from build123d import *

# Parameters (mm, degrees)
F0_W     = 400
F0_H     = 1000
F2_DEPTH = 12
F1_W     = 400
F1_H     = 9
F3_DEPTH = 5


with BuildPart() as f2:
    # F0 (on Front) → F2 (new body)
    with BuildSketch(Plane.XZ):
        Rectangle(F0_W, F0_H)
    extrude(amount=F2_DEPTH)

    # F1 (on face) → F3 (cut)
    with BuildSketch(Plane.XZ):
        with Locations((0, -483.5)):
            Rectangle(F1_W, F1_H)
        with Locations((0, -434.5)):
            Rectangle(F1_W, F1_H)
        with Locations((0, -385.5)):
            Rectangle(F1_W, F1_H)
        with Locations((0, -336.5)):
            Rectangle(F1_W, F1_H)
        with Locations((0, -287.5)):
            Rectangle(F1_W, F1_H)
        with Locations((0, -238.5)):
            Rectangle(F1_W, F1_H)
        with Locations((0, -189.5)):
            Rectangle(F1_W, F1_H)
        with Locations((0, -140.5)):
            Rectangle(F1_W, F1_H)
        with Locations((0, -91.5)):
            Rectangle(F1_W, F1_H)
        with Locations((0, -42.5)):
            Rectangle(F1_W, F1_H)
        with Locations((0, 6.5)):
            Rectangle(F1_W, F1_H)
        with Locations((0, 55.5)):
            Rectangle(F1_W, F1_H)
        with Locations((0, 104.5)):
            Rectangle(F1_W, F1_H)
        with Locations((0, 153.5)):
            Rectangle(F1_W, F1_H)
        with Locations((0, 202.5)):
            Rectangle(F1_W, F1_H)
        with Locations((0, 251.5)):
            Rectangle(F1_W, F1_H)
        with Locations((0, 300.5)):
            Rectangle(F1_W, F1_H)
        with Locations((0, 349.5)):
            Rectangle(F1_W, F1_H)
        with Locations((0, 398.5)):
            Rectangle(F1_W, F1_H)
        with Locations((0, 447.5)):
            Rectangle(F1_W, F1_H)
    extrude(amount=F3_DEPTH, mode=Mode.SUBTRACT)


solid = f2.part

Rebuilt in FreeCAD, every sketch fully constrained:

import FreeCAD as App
import Part
import Sketcher
from FreeCAD import Vector

doc = App.newDocument("Part")
body = doc.addObject("PartDesign::Body", "Body")

# Sketch on XZ plane
sketch1 = body.newObject("Sketcher::SketchObject", "Sketch")
sketch1.AttachmentSupport = (doc.getObject("XZ_Plane"), [""])
sketch1.MapMode = "FlatFace"
sketch1.addGeometry(Part.LineSegment(Vector(-200, 500, 0), Vector(-200, -500, 0)), False)
sketch1.addGeometry(Part.LineSegment(Vector(-200, -500, 0), Vector(200, -500, 0)), False)
sketch1.addGeometry(Part.LineSegment(Vector(200, -500, 0), Vector(200, 500, 0)), False)
sketch1.addGeometry(Part.LineSegment(Vector(200, 500, 0), Vector(-200, 500, 0)), False)
sketch1.addConstraint(Sketcher.Constraint("Coincident", 0, 2, 1, 1))
sketch1.addConstraint(Sketcher.Constraint("Coincident", 1, 2, 2, 1))
sketch1.addConstraint(Sketcher.Constraint("Coincident", 2, 2, 3, 1))
sketch1.addConstraint(Sketcher.Constraint("Coincident", 3, 2, 0, 1))
sketch1.addConstraint(Sketcher.Constraint("Vertical", 0))
sketch1.addConstraint(Sketcher.Constraint("Horizontal", 1))
sketch1.addConstraint(Sketcher.Constraint("Vertical", 2))
sketch1.addConstraint(Sketcher.Constraint("Horizontal", 3))
sketch1.addConstraint(Sketcher.Constraint("Symmetric", 0, 2, 2, 2, -1, 1))
sketch1.addConstraint(Sketcher.Constraint("DistanceX", 1, 1, 1, 2, 400.0))
sketch1.addConstraint(Sketcher.Constraint("DistanceY", 0, 2, 0, 1, 1000.0))
pad1 = body.newObject("PartDesign::Pad", "Pad")
pad1.Profile = sketch1
pad1.Length = 12

# Sketch on XZ plane
sketch2 = body.newObject("Sketcher::SketchObject", "Sketch001")
sketch2.AttachmentSupport = (doc.getObject("XZ_Plane"), [""])
sketch2.MapMode = "FlatFace"
sketch2.addGeometry(Part.LineSegment(Vector(-200, -479, 0), Vector(-200, -488, 0)), False)
sketch2.addGeometry(Part.LineSegment(Vector(-200, -488, 0), Vector(200, -488, 0)), False)
sketch2.addGeometry(Part.LineSegment(Vector(200, -488, 0), Vector(200, -479, 0)), False)
sketch2.addGeometry(Part.LineSegment(Vector(200, -479, 0), Vector(-200, -479, 0)), False)
sketch2.addGeometry(Part.LineSegment(Vector(-200, -430, 0), Vector(-200, -439, 0)), False)
sketch2.addGeometry(Part.LineSegment(Vector(-200, -439, 0), Vector(200, -439, 0)), False)
sketch2.addGeometry(Part.LineSegment(Vector(200, -439, 0), Vector(200, -430, 0)), False)
sketch2.addGeometry(Part.LineSegment(Vector(200, -430, 0), Vector(-200, -430, 0)), False)
sketch2.addGeometry(Part.LineSegment(Vector(-200, -381, 0), Vector(-200, -390, 0)), False)
sketch2.addGeometry(Part.LineSegment(Vector(-200, -390, 0), Vector(200, -390, 0)), False)
sketch2.addGeometry(Part.LineSegment(Vector(200, -390, 0), Vector(200, -381, 0)), False)
sketch2.addGeometry(Part.LineSegment(Vector(200, -381, 0), Vector(-200, -381, 0)), False)
sketch2.addGeometry(Part.LineSegment(Vector(-200, -332, 0), Vector(-200, -341, 0)), False)
sketch2.addGeometry(Part.LineSegment(Vector(-200, -341, 0), Vector(200, -341, 0)), False)
sketch2.addGeometry(Part.LineSegment(Vector(200, -341, 0), Vector(200, -332, 0)), False)
sketch2.addGeometry(Part.LineSegment(Vector(200, -332, 0), Vector(-200, -332, 0)), False)
sketch2.addGeometry(Part.LineSegment(Vector(-200, -283, 0), Vector(-200, -292, 0)), False)
sketch2.addGeometry(Part.LineSegment(Vector(-200, -292, 0), Vector(200, -292, 0)), False)
sketch2.addGeometry(Part.LineSegment(Vector(200, -292, 0), Vector(200, -283, 0)), False)
sketch2.addGeometry(Part.LineSegment(Vector(200, -283, 0), Vector(-200, -283, 0)), False)
sketch2.addGeometry(Part.LineSegment(Vector(-200, -234, 0), Vector(-200, -243, 0)), False)
sketch2.addGeometry(Part.LineSegment(Vector(-200, -243, 0), Vector(200, -243, 0)), False)
sketch2.addGeometry(Part.LineSegment(Vector(200, -243, 0), Vector(200, -234, 0)), False)
sketch2.addGeometry(Part.LineSegment(Vector(200, -234, 0), Vector(-200, -234, 0)), False)
sketch2.addGeometry(Part.LineSegment(Vector(-200, -185, 0), Vector(-200, -194, 0)), False)
sketch2.addGeometry(Part.LineSegment(Vector(-200, -194, 0), Vector(200, -194, 0)), False)
sketch2.addGeometry(Part.LineSegment(Vector(200, -194, 0), Vector(200, -185, 0)), False)
sketch2.addGeometry(Part.LineSegment(Vector(200, -185, 0), Vector(-200, -185, 0)), False)
sketch2.addGeometry(Part.LineSegment(Vector(-200, -136, 0), Vector(-200, -145, 0)), False)
sketch2.addGeometry(Part.LineSegment(Vector(-200, -145, 0), Vector(200, -145, 0)), False)
sketch2.addGeometry(Part.LineSegment(Vector(200, -145, 0), Vector(200, -136, 0)), False)
sketch2.addGeometry(Part.LineSegment(Vector(200, -136, 0), Vector(-200, -136, 0)), False)
sketch2.addGeometry(Part.LineSegment(Vector(-200, -87, 0), Vector(-200, -96, 0)), False)
sketch2.addGeometry(Part.LineSegment(Vector(-200, -96, 0), Vector(200, -96, 0)), False)
sketch2.addGeometry(Part.LineSegment(Vector(200, -96, 0), Vector(200, -87, 0)), False)
sketch2.addGeometry(Part.LineSegment(Vector(200, -87, 0), Vector(-200, -87, 0)), False)
sketch2.addGeometry(Part.LineSegment(Vector(-200, -38, 0), Vector(-200, -47, 0)), False)
sketch2.addGeometry(Part.LineSegment(Vector(-200, -47, 0), Vector(200, -47, 0)), False)
sketch2.addGeometry(Part.LineSegment(Vector(200, -47, 0), Vector(200, -38, 0)), False)
sketch2.addGeometry(Part.LineSegment(Vector(200, -38, 0), Vector(-200, -38, 0)), False)
sketch2.addGeometry(Part.LineSegment(Vector(-200, 11, 0), Vector(-200, 2, 0)), False)
sketch2.addGeometry(Part.LineSegment(Vector(-200, 2, 0), Vector(200, 2, 0)), False)
sketch2.addGeometry(Part.LineSegment(Vector(200, 2, 0), Vector(200, 11, 0)), False)
sketch2.addGeometry(Part.LineSegment(Vector(200, 11, 0), Vector(-200, 11, 0)), False)
sketch2.addGeometry(Part.LineSegment(Vector(-200, 60, 0), Vector(-200, 51, 0)), False)
sketch2.addGeometry(Part.LineSegment(Vector(-200, 51, 0), Vector(200, 51, 0)), False)
sketch2.addGeometry(Part.LineSegment(Vector(200, 51, 0), Vector(200, 60, 0)), False)
sketch2.addGeometry(Part.LineSegment(Vector(200, 60, 0), Vector(-200, 60, 0)), False)
sketch2.addGeometry(Part.LineSegment(Vector(-200, 109, 0), Vector(-200, 100, 0)), False)
sketch2.addGeometry(Part.LineSegment(Vector(-200, 100, 0), Vector(200, 100, 0)), False)
sketch2.addGeometry(Part.LineSegment(Vector(200, 100, 0), Vector(200, 109, 0)), False)
sketch2.addGeometry(Part.LineSegment(Vector(200, 109, 0), Vector(-200, 109, 0)), False)
sketch2.addGeometry(Part.LineSegment(Vector(-200, 158, 0), Vector(-200, 149, 0)), False)
sketch2.addGeometry(Part.LineSegment(Vector(-200, 149, 0), Vector(200, 149, 0)), False)
sketch2.addGeometry(Part.LineSegment(Vector(200, 149, 0), Vector(200, 158, 0)), False)
sketch2.addGeometry(Part.LineSegment(Vector(200, 158, 0), Vector(-200, 158, 0)), False)
sketch2.addGeometry(Part.LineSegment(Vector(-200, 207, 0), Vector(-200, 198, 0)), False)
sketch2.addGeometry(Part.LineSegment(Vector(-200, 198, 0), Vector(200, 198, 0)), False)
sketch2.addGeometry(Part.LineSegment(Vector(200, 198, 0), Vector(200, 207, 0)), False)
sketch2.addGeometry(Part.LineSegment(Vector(200, 207, 0), Vector(-200, 207, 0)), False)
sketch2.addGeometry(Part.LineSegment(Vector(-200, 256, 0), Vector(-200, 247, 0)), False)
sketch2.addGeometry(Part.LineSegment(Vector(-200, 247, 0), Vector(200, 247, 0)), False)
sketch2.addGeometry(Part.LineSegment(Vector(200, 247, 0), Vector(200, 256, 0)), False)
sketch2.addGeometry(Part.LineSegment(Vector(200, 256, 0), Vector(-200, 256, 0)), False)
sketch2.addGeometry(Part.LineSegment(Vector(-200, 305, 0), Vector(-200, 296, 0)), False)
sketch2.addGeometry(Part.LineSegment(Vector(-200, 296, 0), Vector(200, 296, 0)), False)
sketch2.addGeometry(Part.LineSegment(Vector(200, 296, 0), Vector(200, 305, 0)), False)
sketch2.addGeometry(Part.LineSegment(Vector(200, 305, 0), Vector(-200, 305, 0)), False)
sketch2.addGeometry(Part.LineSegment(Vector(-200, 354, 0), Vector(-200, 345, 0)), False)
sketch2.addGeometry(Part.LineSegment(Vector(-200, 345, 0), Vector(200, 345, 0)), False)
sketch2.addGeometry(Part.LineSegment(Vector(200, 345, 0), Vector(200, 354, 0)), False)
sketch2.addGeometry(Part.LineSegment(Vector(200, 354, 0), Vector(-200, 354, 0)), False)
sketch2.addGeometry(Part.LineSegment(Vector(-200, 403, 0), Vector(-200, 394, 0)), False)
sketch2.addGeometry(Part.LineSegment(Vector(-200, 394, 0), Vector(200, 394, 0)), False)
sketch2.addGeometry(Part.LineSegment(Vector(200, 394, 0), Vector(200, 403, 0)), False)
sketch2.addGeometry(Part.LineSegment(Vector(200, 403, 0), Vector(-200, 403, 0)), False)
sketch2.addGeometry(Part.LineSegment(Vector(-200, 452, 0), Vector(-200, 443, 0)), False)
sketch2.addGeometry(Part.LineSegment(Vector(-200, 443, 0), Vector(200, 443, 0)), False)
sketch2.addGeometry(Part.LineSegment(Vector(200, 443, 0), Vector(200, 452, 0)), False)
sketch2.addGeometry(Part.LineSegment(Vector(200, 452, 0), Vector(-200, 452, 0)), False)
sketch2.addConstraint(Sketcher.Constraint("Coincident", 0, 2, 1, 1))
sketch2.addConstraint(Sketcher.Constraint("Coincident", 1, 2, 2, 1))
sketch2.addConstraint(Sketcher.Constraint("Coincident", 2, 2, 3, 1))
sketch2.addConstraint(Sketcher.Constraint("Coincident", 3, 2, 0, 1))
sketch2.addConstraint(Sketcher.Constraint("Coincident", 4, 2, 5, 1))
sketch2.addConstraint(Sketcher.Constraint("Coincident", 5, 2, 6, 1))
sketch2.addConstraint(Sketcher.Constraint("Coincident", 6, 2, 7, 1))
sketch2.addConstraint(Sketcher.Constraint("Coincident", 7, 2, 4, 1))
sketch2.addConstraint(Sketcher.Constraint("Coincident", 8, 2, 9, 1))
sketch2.addConstraint(Sketcher.Constraint("Coincident", 9, 2, 10, 1))
sketch2.addConstraint(Sketcher.Constraint("Coincident", 10, 2, 11, 1))
sketch2.addConstraint(Sketcher.Constraint("Coincident", 11, 2, 8, 1))
sketch2.addConstraint(Sketcher.Constraint("Coincident", 12, 2, 13, 1))
sketch2.addConstraint(Sketcher.Constraint("Coincident", 13, 2, 14, 1))
sketch2.addConstraint(Sketcher.Constraint("Coincident", 14, 2, 15, 1))
sketch2.addConstraint(Sketcher.Constraint("Coincident", 15, 2, 12, 1))
sketch2.addConstraint(Sketcher.Constraint("Coincident", 16, 2, 17, 1))
sketch2.addConstraint(Sketcher.Constraint("Coincident", 17, 2, 18, 1))
sketch2.addConstraint(Sketcher.Constraint("Coincident", 18, 2, 19, 1))
sketch2.addConstraint(Sketcher.Constraint("Coincident", 19, 2, 16, 1))
sketch2.addConstraint(Sketcher.Constraint("Coincident", 20, 2, 21, 1))
sketch2.addConstraint(Sketcher.Constraint("Coincident", 21, 2, 22, 1))
sketch2.addConstraint(Sketcher.Constraint("Coincident", 22, 2, 23, 1))
sketch2.addConstraint(Sketcher.Constraint("Coincident", 23, 2, 20, 1))
sketch2.addConstraint(Sketcher.Constraint("Coincident", 24, 2, 25, 1))
sketch2.addConstraint(Sketcher.Constraint("Coincident", 25, 2, 26, 1))
sketch2.addConstraint(Sketcher.Constraint("Coincident", 26, 2, 27, 1))
sketch2.addConstraint(Sketcher.Constraint("Coincident", 27, 2, 24, 1))
sketch2.addConstraint(Sketcher.Constraint("Coincident", 28, 2, 29, 1))
sketch2.addConstraint(Sketcher.Constraint("Coincident", 29, 2, 30, 1))
sketch2.addConstraint(Sketcher.Constraint("Coincident", 30, 2, 31, 1))
sketch2.addConstraint(Sketcher.Constraint("Coincident", 31, 2, 28, 1))
sketch2.addConstraint(Sketcher.Constraint("Coincident", 32, 2, 33, 1))
sketch2.addConstraint(Sketcher.Constraint("Coincident", 33, 2, 34, 1))
sketch2.addConstraint(Sketcher.Constraint("Coincident", 34, 2, 35, 1))
sketch2.addConstraint(Sketcher.Constraint("Coincident", 35, 2, 32, 1))
sketch2.addConstraint(Sketcher.Constraint("Coincident", 36, 2, 37, 1))
sketch2.addConstraint(Sketcher.Constraint("Coincident", 37, 2, 38, 1))
sketch2.addConstraint(Sketcher.Constraint("Coincident", 38, 2, 39, 1))
sketch2.addConstraint(Sketcher.Constraint("Coincident", 39, 2, 36, 1))
sketch2.addConstraint(Sketcher.Constraint("Coincident", 40, 2, 41, 1))
sketch2.addConstraint(Sketcher.Constraint("Coincident", 41, 2, 42, 1))
sketch2.addConstraint(Sketcher.Constraint("Coincident", 42, 2, 43, 1))
sketch2.addConstraint(Sketcher.Constraint("Coincident", 43, 2, 40, 1))
sketch2.addConstraint(Sketcher.Constraint("Coincident", 44, 2, 45, 1))
sketch2.addConstraint(Sketcher.Constraint("Coincident", 45, 2, 46, 1))
sketch2.addConstraint(Sketcher.Constraint("Coincident", 46, 2, 47, 1))
sketch2.addConstraint(Sketcher.Constraint("Coincident", 47, 2, 44, 1))
sketch2.addConstraint(Sketcher.Constraint("Coincident", 48, 2, 49, 1))
sketch2.addConstraint(Sketcher.Constraint("Coincident", 49, 2, 50, 1))
sketch2.addConstraint(Sketcher.Constraint("Coincident", 50, 2, 51, 1))
sketch2.addConstraint(Sketcher.Constraint("Coincident", 51, 2, 48, 1))
sketch2.addConstraint(Sketcher.Constraint("Coincident", 52, 2, 53, 1))
sketch2.addConstraint(Sketcher.Constraint("Coincident", 53, 2, 54, 1))
sketch2.addConstraint(Sketcher.Constraint("Coincident", 54, 2, 55, 1))
sketch2.addConstraint(Sketcher.Constraint("Coincident", 55, 2, 52, 1))
sketch2.addConstraint(Sketcher.Constraint("Coincident", 56, 2, 57, 1))
sketch2.addConstraint(Sketcher.Constraint("Coincident", 57, 2, 58, 1))
sketch2.addConstraint(Sketcher.Constraint("Coincident", 58, 2, 59, 1))
sketch2.addConstraint(Sketcher.Constraint("Coincident", 59, 2, 56, 1))
sketch2.addConstraint(Sketcher.Constraint("Coincident", 60, 2, 61, 1))
sketch2.addConstraint(Sketcher.Constraint("Coincident", 61, 2, 62, 1))
sketch2.addConstraint(Sketcher.Constraint("Coincident", 62, 2, 63, 1))
sketch2.addConstraint(Sketcher.Constraint("Coincident", 63, 2, 60, 1))
sketch2.addConstraint(Sketcher.Constraint("Coincident", 64, 2, 65, 1))
sketch2.addConstraint(Sketcher.Constraint("Coincident", 65, 2, 66, 1))
sketch2.addConstraint(Sketcher.Constraint("Coincident", 66, 2, 67, 1))
sketch2.addConstraint(Sketcher.Constraint("Coincident", 67, 2, 64, 1))
sketch2.addConstraint(Sketcher.Constraint("Coincident", 68, 2, 69, 1))
sketch2.addConstraint(Sketcher.Constraint("Coincident", 69, 2, 70, 1))
sketch2.addConstraint(Sketcher.Constraint("Coincident", 70, 2, 71, 1))
sketch2.addConstraint(Sketcher.Constraint("Coincident", 71, 2, 68, 1))
sketch2.addConstraint(Sketcher.Constraint("Coincident", 72, 2, 73, 1))
sketch2.addConstraint(Sketcher.Constraint("Coincident", 73, 2, 74, 1))
sketch2.addConstraint(Sketcher.Constraint("Coincident", 74, 2, 75, 1))
sketch2.addConstraint(Sketcher.Constraint("Coincident", 75, 2, 72, 1))
sketch2.addConstraint(Sketcher.Constraint("Coincident", 76, 2, 77, 1))
sketch2.addConstraint(Sketcher.Constraint("Coincident", 77, 2, 78, 1))
sketch2.addConstraint(Sketcher.Constraint("Coincident", 78, 2, 79, 1))
sketch2.addConstraint(Sketcher.Constraint("Coincident", 79, 2, 76, 1))
sketch2.addConstraint(Sketcher.Constraint("Vertical", 0))
sketch2.addConstraint(Sketcher.Constraint("Horizontal", 1))
sketch2.addConstraint(Sketcher.Constraint("Vertical", 2))
sketch2.addConstraint(Sketcher.Constraint("Horizontal", 3))
sketch2.addConstraint(Sketcher.Constraint("Vertical", 4))
sketch2.addConstraint(Sketcher.Constraint("Horizontal", 5))
sketch2.addConstraint(Sketcher.Constraint("Vertical", 6))
sketch2.addConstraint(Sketcher.Constraint("Horizontal", 7))
sketch2.addConstraint(Sketcher.Constraint("Vertical", 8))
sketch2.addConstraint(Sketcher.Constraint("Horizontal", 9))
sketch2.addConstraint(Sketcher.Constraint("Vertical", 10))
sketch2.addConstraint(Sketcher.Constraint("Horizontal", 11))
sketch2.addConstraint(Sketcher.Constraint("Vertical", 12))
sketch2.addConstraint(Sketcher.Constraint("Horizontal", 13))
sketch2.addConstraint(Sketcher.Constraint("Vertical", 14))
sketch2.addConstraint(Sketcher.Constraint("Horizontal", 15))
sketch2.addConstraint(Sketcher.Constraint("Vertical", 16))
sketch2.addConstraint(Sketcher.Constraint("Horizontal", 17))
sketch2.addConstraint(Sketcher.Constraint("Vertical", 18))
sketch2.addConstraint(Sketcher.Constraint("Horizontal", 19))
sketch2.addConstraint(Sketcher.Constraint("Vertical", 20))
sketch2.addConstraint(Sketcher.Constraint("Horizontal", 21))
sketch2.addConstraint(Sketcher.Constraint("Vertical", 22))
sketch2.addConstraint(Sketcher.Constraint("Horizontal", 23))
sketch2.addConstraint(Sketcher.Constraint("Vertical", 24))
sketch2.addConstraint(Sketcher.Constraint("Horizontal", 25))
sketch2.addConstraint(Sketcher.Constraint("Vertical", 26))
sketch2.addConstraint(Sketcher.Constraint("Horizontal", 27))
sketch2.addConstraint(Sketcher.Constraint("Vertical", 28))
sketch2.addConstraint(Sketcher.Constraint("Horizontal", 29))
sketch2.addConstraint(Sketcher.Constraint("Vertical", 30))
sketch2.addConstraint(Sketcher.Constraint("Horizontal", 31))
sketch2.addConstraint(Sketcher.Constraint("Vertical", 32))
sketch2.addConstraint(Sketcher.Constraint("Horizontal", 33))
sketch2.addConstraint(Sketcher.Constraint("Vertical", 34))
sketch2.addConstraint(Sketcher.Constraint("Horizontal", 35))
sketch2.addConstraint(Sketcher.Constraint("Vertical", 36))
sketch2.addConstraint(Sketcher.Constraint("Horizontal", 37))
sketch2.addConstraint(Sketcher.Constraint("Vertical", 38))
sketch2.addConstraint(Sketcher.Constraint("Horizontal", 39))
sketch2.addConstraint(Sketcher.Constraint("Vertical", 40))
sketch2.addConstraint(Sketcher.Constraint("Horizontal", 41))
sketch2.addConstraint(Sketcher.Constraint("Vertical", 42))
sketch2.addConstraint(Sketcher.Constraint("Horizontal", 43))
sketch2.addConstraint(Sketcher.Constraint("Vertical", 44))
sketch2.addConstraint(Sketcher.Constraint("Horizontal", 45))
sketch2.addConstraint(Sketcher.Constraint("Vertical", 46))
sketch2.addConstraint(Sketcher.Constraint("Horizontal", 47))
sketch2.addConstraint(Sketcher.Constraint("Vertical", 48))
sketch2.addConstraint(Sketcher.Constraint("Horizontal", 49))
sketch2.addConstraint(Sketcher.Constraint("Vertical", 50))
sketch2.addConstraint(Sketcher.Constraint("Horizontal", 51))
sketch2.addConstraint(Sketcher.Constraint("Vertical", 52))
sketch2.addConstraint(Sketcher.Constraint("Horizontal", 53))
sketch2.addConstraint(Sketcher.Constraint("Vertical", 54))
sketch2.addConstraint(Sketcher.Constraint("Horizontal", 55))
sketch2.addConstraint(Sketcher.Constraint("Vertical", 56))
sketch2.addConstraint(Sketcher.Constraint("Horizontal", 57))
sketch2.addConstraint(Sketcher.Constraint("Vertical", 58))
sketch2.addConstraint(Sketcher.Constraint("Horizontal", 59))
sketch2.addConstraint(Sketcher.Constraint("Vertical", 60))
sketch2.addConstraint(Sketcher.Constraint("Horizontal", 61))
sketch2.addConstraint(Sketcher.Constraint("Vertical", 62))
sketch2.addConstraint(Sketcher.Constraint("Horizontal", 63))
sketch2.addConstraint(Sketcher.Constraint("Vertical", 64))
sketch2.addConstraint(Sketcher.Constraint("Horizontal", 65))
sketch2.addConstraint(Sketcher.Constraint("Vertical", 66))
sketch2.addConstraint(Sketcher.Constraint("Horizontal", 67))
sketch2.addConstraint(Sketcher.Constraint("Vertical", 68))
sketch2.addConstraint(Sketcher.Constraint("Horizontal", 69))
sketch2.addConstraint(Sketcher.Constraint("Vertical", 70))
sketch2.addConstraint(Sketcher.Constraint("Horizontal", 71))
sketch2.addConstraint(Sketcher.Constraint("Vertical", 72))
sketch2.addConstraint(Sketcher.Constraint("Horizontal", 73))
sketch2.addConstraint(Sketcher.Constraint("Vertical", 74))
sketch2.addConstraint(Sketcher.Constraint("Horizontal", 75))
sketch2.addConstraint(Sketcher.Constraint("Vertical", 76))
sketch2.addConstraint(Sketcher.Constraint("Horizontal", 77))
sketch2.addConstraint(Sketcher.Constraint("Vertical", 78))
sketch2.addConstraint(Sketcher.Constraint("Horizontal", 79))
sketch2.addConstraint(Sketcher.Constraint("Vertical", 3, 2, 4, 2))
sketch2.addConstraint(Sketcher.Constraint("Vertical", 2, 2, 5, 2))
sketch2.addConstraint(Sketcher.Constraint("Vertical", 7, 2, 8, 2))
sketch2.addConstraint(Sketcher.Constraint("Vertical", 6, 2, 9, 2))
sketch2.addConstraint(Sketcher.Constraint("Vertical", 11, 2, 12, 2))
sketch2.addConstraint(Sketcher.Constraint("Vertical", 10, 2, 13, 2))
sketch2.addConstraint(Sketcher.Constraint("Vertical", 15, 2, 16, 2))
sketch2.addConstraint(Sketcher.Constraint("Vertical", 14, 2, 17, 2))
sketch2.addConstraint(Sketcher.Constraint("Vertical", 19, 2, 20, 2))
sketch2.addConstraint(Sketcher.Constraint("Vertical", 18, 2, 21, 2))
sketch2.addConstraint(Sketcher.Constraint("Vertical", 23, 2, 24, 2))
sketch2.addConstraint(Sketcher.Constraint("Vertical", 22, 2, 25, 2))
sketch2.addConstraint(Sketcher.Constraint("Vertical", 27, 2, 28, 2))
sketch2.addConstraint(Sketcher.Constraint("Vertical", 26, 2, 29, 2))
sketch2.addConstraint(Sketcher.Constraint("Vertical", 31, 2, 32, 2))
sketch2.addConstraint(Sketcher.Constraint("Vertical", 30, 2, 33, 2))
sketch2.addConstraint(Sketcher.Constraint("Vertical", 35, 2, 36, 2))
sketch2.addConstraint(Sketcher.Constraint("Vertical", 34, 2, 37, 2))
sketch2.addConstraint(Sketcher.Constraint("Vertical", 39, 2, 40, 2))
sketch2.addConstraint(Sketcher.Constraint("Vertical", 38, 2, 41, 2))
sketch2.addConstraint(Sketcher.Constraint("Vertical", 43, 2, 44, 2))
sketch2.addConstraint(Sketcher.Constraint("Vertical", 42, 2, 45, 2))
sketch2.addConstraint(Sketcher.Constraint("Vertical", 47, 2, 48, 2))
sketch2.addConstraint(Sketcher.Constraint("Vertical", 46, 2, 49, 2))
sketch2.addConstraint(Sketcher.Constraint("Vertical", 51, 2, 52, 2))
sketch2.addConstraint(Sketcher.Constraint("Vertical", 50, 2, 53, 2))
sketch2.addConstraint(Sketcher.Constraint("Vertical", 55, 2, 56, 2))
sketch2.addConstraint(Sketcher.Constraint("Vertical", 54, 2, 57, 2))
sketch2.addConstraint(Sketcher.Constraint("Vertical", 59, 2, 60, 2))
sketch2.addConstraint(Sketcher.Constraint("Vertical", 58, 2, 61, 2))
sketch2.addConstraint(Sketcher.Constraint("Vertical", 63, 2, 64, 2))
sketch2.addConstraint(Sketcher.Constraint("Vertical", 62, 2, 65, 2))
sketch2.addConstraint(Sketcher.Constraint("Vertical", 67, 2, 68, 2))
sketch2.addConstraint(Sketcher.Constraint("Vertical", 66, 2, 69, 2))
sketch2.addConstraint(Sketcher.Constraint("Vertical", 71, 2, 72, 2))
sketch2.addConstraint(Sketcher.Constraint("Vertical", 70, 2, 73, 2))
sketch2.addConstraint(Sketcher.Constraint("Vertical", 75, 2, 76, 2))
sketch2.addConstraint(Sketcher.Constraint("Vertical", 74, 2, 77, 2))
sketch2.addConstraint(Sketcher.Constraint("Equal", 2, 4))
sketch2.addConstraint(Sketcher.Constraint("Equal", 6, 8))
sketch2.addConstraint(Sketcher.Constraint("Equal", 10, 12))
sketch2.addConstraint(Sketcher.Constraint("Equal", 14, 16))
sketch2.addConstraint(Sketcher.Constraint("Equal", 18, 20))
sketch2.addConstraint(Sketcher.Constraint("Equal", 22, 24))
sketch2.addConstraint(Sketcher.Constraint("Equal", 26, 28))
sketch2.addConstraint(Sketcher.Constraint("Equal", 30, 32))
sketch2.addConstraint(Sketcher.Constraint("Equal", 34, 36))
sketch2.addConstraint(Sketcher.Constraint("Equal", 38, 40))
sketch2.addConstraint(Sketcher.Constraint("Equal", 42, 44))
sketch2.addConstraint(Sketcher.Constraint("Equal", 46, 48))
sketch2.addConstraint(Sketcher.Constraint("Equal", 50, 52))
sketch2.addConstraint(Sketcher.Constraint("Equal", 54, 56))
sketch2.addConstraint(Sketcher.Constraint("Equal", 58, 60))
sketch2.addConstraint(Sketcher.Constraint("Equal", 62, 64))
sketch2.addConstraint(Sketcher.Constraint("Equal", 66, 68))
sketch2.addConstraint(Sketcher.Constraint("Equal", 70, 72))
sketch2.addConstraint(Sketcher.Constraint("Equal", 74, 76))
sketch2.addConstraint(Sketcher.Constraint("DistanceX", 1, 1, 1, 2, 400.0))
sketch2.addConstraint(Sketcher.Constraint("DistanceY", 0, 2, 0, 1, 9.0))
sketch2.addConstraint(Sketcher.Constraint("DistanceX", 0, 2, -1, 1, 200.0))
sketch2.addConstraint(Sketcher.Constraint("DistanceY", 0, 2, -1, 1, 488.0))
sketch2.addConstraint(Sketcher.Constraint("DistanceY", 4, 2, -1, 1, 439.0))
sketch2.addConstraint(Sketcher.Constraint("DistanceY", 8, 2, -1, 1, 390.0))
sketch2.addConstraint(Sketcher.Constraint("DistanceY", 12, 2, -1, 1, 341.0))
sketch2.addConstraint(Sketcher.Constraint("DistanceY", 16, 2, -1, 1, 292.0))
sketch2.addConstraint(Sketcher.Constraint("DistanceY", 20, 2, -1, 1, 243.0))
sketch2.addConstraint(Sketcher.Constraint("DistanceY", 24, 2, -1, 1, 194.0))
sketch2.addConstraint(Sketcher.Constraint("DistanceY", 28, 2, -1, 1, 145.0))
sketch2.addConstraint(Sketcher.Constraint("DistanceY", 32, 2, -1, 1, 96.0))
sketch2.addConstraint(Sketcher.Constraint("DistanceY", 36, 2, -1, 1, 47.0))
sketch2.addConstraint(Sketcher.Constraint("DistanceY", -1, 1, 40, 2, 2.0))
sketch2.addConstraint(Sketcher.Constraint("DistanceY", -1, 1, 44, 2, 51.0))
sketch2.addConstraint(Sketcher.Constraint("DistanceY", -1, 1, 48, 2, 100.0))
sketch2.addConstraint(Sketcher.Constraint("DistanceY", -1, 1, 52, 2, 149.0))
sketch2.addConstraint(Sketcher.Constraint("DistanceY", -1, 1, 56, 2, 198.0))
sketch2.addConstraint(Sketcher.Constraint("DistanceY", -1, 1, 60, 2, 247.0))
sketch2.addConstraint(Sketcher.Constraint("DistanceY", -1, 1, 64, 2, 296.0))
sketch2.addConstraint(Sketcher.Constraint("DistanceY", -1, 1, 68, 2, 345.0))
sketch2.addConstraint(Sketcher.Constraint("DistanceY", -1, 1, 72, 2, 394.0))
sketch2.addConstraint(Sketcher.Constraint("DistanceY", -1, 1, 76, 2, 443.0))
pocket1 = body.newObject("PartDesign::Pocket", "Pocket")
pocket1.Profile = sketch2
pocket1.Length = 5
pocket1.Reversed = True

doc.recompute()
